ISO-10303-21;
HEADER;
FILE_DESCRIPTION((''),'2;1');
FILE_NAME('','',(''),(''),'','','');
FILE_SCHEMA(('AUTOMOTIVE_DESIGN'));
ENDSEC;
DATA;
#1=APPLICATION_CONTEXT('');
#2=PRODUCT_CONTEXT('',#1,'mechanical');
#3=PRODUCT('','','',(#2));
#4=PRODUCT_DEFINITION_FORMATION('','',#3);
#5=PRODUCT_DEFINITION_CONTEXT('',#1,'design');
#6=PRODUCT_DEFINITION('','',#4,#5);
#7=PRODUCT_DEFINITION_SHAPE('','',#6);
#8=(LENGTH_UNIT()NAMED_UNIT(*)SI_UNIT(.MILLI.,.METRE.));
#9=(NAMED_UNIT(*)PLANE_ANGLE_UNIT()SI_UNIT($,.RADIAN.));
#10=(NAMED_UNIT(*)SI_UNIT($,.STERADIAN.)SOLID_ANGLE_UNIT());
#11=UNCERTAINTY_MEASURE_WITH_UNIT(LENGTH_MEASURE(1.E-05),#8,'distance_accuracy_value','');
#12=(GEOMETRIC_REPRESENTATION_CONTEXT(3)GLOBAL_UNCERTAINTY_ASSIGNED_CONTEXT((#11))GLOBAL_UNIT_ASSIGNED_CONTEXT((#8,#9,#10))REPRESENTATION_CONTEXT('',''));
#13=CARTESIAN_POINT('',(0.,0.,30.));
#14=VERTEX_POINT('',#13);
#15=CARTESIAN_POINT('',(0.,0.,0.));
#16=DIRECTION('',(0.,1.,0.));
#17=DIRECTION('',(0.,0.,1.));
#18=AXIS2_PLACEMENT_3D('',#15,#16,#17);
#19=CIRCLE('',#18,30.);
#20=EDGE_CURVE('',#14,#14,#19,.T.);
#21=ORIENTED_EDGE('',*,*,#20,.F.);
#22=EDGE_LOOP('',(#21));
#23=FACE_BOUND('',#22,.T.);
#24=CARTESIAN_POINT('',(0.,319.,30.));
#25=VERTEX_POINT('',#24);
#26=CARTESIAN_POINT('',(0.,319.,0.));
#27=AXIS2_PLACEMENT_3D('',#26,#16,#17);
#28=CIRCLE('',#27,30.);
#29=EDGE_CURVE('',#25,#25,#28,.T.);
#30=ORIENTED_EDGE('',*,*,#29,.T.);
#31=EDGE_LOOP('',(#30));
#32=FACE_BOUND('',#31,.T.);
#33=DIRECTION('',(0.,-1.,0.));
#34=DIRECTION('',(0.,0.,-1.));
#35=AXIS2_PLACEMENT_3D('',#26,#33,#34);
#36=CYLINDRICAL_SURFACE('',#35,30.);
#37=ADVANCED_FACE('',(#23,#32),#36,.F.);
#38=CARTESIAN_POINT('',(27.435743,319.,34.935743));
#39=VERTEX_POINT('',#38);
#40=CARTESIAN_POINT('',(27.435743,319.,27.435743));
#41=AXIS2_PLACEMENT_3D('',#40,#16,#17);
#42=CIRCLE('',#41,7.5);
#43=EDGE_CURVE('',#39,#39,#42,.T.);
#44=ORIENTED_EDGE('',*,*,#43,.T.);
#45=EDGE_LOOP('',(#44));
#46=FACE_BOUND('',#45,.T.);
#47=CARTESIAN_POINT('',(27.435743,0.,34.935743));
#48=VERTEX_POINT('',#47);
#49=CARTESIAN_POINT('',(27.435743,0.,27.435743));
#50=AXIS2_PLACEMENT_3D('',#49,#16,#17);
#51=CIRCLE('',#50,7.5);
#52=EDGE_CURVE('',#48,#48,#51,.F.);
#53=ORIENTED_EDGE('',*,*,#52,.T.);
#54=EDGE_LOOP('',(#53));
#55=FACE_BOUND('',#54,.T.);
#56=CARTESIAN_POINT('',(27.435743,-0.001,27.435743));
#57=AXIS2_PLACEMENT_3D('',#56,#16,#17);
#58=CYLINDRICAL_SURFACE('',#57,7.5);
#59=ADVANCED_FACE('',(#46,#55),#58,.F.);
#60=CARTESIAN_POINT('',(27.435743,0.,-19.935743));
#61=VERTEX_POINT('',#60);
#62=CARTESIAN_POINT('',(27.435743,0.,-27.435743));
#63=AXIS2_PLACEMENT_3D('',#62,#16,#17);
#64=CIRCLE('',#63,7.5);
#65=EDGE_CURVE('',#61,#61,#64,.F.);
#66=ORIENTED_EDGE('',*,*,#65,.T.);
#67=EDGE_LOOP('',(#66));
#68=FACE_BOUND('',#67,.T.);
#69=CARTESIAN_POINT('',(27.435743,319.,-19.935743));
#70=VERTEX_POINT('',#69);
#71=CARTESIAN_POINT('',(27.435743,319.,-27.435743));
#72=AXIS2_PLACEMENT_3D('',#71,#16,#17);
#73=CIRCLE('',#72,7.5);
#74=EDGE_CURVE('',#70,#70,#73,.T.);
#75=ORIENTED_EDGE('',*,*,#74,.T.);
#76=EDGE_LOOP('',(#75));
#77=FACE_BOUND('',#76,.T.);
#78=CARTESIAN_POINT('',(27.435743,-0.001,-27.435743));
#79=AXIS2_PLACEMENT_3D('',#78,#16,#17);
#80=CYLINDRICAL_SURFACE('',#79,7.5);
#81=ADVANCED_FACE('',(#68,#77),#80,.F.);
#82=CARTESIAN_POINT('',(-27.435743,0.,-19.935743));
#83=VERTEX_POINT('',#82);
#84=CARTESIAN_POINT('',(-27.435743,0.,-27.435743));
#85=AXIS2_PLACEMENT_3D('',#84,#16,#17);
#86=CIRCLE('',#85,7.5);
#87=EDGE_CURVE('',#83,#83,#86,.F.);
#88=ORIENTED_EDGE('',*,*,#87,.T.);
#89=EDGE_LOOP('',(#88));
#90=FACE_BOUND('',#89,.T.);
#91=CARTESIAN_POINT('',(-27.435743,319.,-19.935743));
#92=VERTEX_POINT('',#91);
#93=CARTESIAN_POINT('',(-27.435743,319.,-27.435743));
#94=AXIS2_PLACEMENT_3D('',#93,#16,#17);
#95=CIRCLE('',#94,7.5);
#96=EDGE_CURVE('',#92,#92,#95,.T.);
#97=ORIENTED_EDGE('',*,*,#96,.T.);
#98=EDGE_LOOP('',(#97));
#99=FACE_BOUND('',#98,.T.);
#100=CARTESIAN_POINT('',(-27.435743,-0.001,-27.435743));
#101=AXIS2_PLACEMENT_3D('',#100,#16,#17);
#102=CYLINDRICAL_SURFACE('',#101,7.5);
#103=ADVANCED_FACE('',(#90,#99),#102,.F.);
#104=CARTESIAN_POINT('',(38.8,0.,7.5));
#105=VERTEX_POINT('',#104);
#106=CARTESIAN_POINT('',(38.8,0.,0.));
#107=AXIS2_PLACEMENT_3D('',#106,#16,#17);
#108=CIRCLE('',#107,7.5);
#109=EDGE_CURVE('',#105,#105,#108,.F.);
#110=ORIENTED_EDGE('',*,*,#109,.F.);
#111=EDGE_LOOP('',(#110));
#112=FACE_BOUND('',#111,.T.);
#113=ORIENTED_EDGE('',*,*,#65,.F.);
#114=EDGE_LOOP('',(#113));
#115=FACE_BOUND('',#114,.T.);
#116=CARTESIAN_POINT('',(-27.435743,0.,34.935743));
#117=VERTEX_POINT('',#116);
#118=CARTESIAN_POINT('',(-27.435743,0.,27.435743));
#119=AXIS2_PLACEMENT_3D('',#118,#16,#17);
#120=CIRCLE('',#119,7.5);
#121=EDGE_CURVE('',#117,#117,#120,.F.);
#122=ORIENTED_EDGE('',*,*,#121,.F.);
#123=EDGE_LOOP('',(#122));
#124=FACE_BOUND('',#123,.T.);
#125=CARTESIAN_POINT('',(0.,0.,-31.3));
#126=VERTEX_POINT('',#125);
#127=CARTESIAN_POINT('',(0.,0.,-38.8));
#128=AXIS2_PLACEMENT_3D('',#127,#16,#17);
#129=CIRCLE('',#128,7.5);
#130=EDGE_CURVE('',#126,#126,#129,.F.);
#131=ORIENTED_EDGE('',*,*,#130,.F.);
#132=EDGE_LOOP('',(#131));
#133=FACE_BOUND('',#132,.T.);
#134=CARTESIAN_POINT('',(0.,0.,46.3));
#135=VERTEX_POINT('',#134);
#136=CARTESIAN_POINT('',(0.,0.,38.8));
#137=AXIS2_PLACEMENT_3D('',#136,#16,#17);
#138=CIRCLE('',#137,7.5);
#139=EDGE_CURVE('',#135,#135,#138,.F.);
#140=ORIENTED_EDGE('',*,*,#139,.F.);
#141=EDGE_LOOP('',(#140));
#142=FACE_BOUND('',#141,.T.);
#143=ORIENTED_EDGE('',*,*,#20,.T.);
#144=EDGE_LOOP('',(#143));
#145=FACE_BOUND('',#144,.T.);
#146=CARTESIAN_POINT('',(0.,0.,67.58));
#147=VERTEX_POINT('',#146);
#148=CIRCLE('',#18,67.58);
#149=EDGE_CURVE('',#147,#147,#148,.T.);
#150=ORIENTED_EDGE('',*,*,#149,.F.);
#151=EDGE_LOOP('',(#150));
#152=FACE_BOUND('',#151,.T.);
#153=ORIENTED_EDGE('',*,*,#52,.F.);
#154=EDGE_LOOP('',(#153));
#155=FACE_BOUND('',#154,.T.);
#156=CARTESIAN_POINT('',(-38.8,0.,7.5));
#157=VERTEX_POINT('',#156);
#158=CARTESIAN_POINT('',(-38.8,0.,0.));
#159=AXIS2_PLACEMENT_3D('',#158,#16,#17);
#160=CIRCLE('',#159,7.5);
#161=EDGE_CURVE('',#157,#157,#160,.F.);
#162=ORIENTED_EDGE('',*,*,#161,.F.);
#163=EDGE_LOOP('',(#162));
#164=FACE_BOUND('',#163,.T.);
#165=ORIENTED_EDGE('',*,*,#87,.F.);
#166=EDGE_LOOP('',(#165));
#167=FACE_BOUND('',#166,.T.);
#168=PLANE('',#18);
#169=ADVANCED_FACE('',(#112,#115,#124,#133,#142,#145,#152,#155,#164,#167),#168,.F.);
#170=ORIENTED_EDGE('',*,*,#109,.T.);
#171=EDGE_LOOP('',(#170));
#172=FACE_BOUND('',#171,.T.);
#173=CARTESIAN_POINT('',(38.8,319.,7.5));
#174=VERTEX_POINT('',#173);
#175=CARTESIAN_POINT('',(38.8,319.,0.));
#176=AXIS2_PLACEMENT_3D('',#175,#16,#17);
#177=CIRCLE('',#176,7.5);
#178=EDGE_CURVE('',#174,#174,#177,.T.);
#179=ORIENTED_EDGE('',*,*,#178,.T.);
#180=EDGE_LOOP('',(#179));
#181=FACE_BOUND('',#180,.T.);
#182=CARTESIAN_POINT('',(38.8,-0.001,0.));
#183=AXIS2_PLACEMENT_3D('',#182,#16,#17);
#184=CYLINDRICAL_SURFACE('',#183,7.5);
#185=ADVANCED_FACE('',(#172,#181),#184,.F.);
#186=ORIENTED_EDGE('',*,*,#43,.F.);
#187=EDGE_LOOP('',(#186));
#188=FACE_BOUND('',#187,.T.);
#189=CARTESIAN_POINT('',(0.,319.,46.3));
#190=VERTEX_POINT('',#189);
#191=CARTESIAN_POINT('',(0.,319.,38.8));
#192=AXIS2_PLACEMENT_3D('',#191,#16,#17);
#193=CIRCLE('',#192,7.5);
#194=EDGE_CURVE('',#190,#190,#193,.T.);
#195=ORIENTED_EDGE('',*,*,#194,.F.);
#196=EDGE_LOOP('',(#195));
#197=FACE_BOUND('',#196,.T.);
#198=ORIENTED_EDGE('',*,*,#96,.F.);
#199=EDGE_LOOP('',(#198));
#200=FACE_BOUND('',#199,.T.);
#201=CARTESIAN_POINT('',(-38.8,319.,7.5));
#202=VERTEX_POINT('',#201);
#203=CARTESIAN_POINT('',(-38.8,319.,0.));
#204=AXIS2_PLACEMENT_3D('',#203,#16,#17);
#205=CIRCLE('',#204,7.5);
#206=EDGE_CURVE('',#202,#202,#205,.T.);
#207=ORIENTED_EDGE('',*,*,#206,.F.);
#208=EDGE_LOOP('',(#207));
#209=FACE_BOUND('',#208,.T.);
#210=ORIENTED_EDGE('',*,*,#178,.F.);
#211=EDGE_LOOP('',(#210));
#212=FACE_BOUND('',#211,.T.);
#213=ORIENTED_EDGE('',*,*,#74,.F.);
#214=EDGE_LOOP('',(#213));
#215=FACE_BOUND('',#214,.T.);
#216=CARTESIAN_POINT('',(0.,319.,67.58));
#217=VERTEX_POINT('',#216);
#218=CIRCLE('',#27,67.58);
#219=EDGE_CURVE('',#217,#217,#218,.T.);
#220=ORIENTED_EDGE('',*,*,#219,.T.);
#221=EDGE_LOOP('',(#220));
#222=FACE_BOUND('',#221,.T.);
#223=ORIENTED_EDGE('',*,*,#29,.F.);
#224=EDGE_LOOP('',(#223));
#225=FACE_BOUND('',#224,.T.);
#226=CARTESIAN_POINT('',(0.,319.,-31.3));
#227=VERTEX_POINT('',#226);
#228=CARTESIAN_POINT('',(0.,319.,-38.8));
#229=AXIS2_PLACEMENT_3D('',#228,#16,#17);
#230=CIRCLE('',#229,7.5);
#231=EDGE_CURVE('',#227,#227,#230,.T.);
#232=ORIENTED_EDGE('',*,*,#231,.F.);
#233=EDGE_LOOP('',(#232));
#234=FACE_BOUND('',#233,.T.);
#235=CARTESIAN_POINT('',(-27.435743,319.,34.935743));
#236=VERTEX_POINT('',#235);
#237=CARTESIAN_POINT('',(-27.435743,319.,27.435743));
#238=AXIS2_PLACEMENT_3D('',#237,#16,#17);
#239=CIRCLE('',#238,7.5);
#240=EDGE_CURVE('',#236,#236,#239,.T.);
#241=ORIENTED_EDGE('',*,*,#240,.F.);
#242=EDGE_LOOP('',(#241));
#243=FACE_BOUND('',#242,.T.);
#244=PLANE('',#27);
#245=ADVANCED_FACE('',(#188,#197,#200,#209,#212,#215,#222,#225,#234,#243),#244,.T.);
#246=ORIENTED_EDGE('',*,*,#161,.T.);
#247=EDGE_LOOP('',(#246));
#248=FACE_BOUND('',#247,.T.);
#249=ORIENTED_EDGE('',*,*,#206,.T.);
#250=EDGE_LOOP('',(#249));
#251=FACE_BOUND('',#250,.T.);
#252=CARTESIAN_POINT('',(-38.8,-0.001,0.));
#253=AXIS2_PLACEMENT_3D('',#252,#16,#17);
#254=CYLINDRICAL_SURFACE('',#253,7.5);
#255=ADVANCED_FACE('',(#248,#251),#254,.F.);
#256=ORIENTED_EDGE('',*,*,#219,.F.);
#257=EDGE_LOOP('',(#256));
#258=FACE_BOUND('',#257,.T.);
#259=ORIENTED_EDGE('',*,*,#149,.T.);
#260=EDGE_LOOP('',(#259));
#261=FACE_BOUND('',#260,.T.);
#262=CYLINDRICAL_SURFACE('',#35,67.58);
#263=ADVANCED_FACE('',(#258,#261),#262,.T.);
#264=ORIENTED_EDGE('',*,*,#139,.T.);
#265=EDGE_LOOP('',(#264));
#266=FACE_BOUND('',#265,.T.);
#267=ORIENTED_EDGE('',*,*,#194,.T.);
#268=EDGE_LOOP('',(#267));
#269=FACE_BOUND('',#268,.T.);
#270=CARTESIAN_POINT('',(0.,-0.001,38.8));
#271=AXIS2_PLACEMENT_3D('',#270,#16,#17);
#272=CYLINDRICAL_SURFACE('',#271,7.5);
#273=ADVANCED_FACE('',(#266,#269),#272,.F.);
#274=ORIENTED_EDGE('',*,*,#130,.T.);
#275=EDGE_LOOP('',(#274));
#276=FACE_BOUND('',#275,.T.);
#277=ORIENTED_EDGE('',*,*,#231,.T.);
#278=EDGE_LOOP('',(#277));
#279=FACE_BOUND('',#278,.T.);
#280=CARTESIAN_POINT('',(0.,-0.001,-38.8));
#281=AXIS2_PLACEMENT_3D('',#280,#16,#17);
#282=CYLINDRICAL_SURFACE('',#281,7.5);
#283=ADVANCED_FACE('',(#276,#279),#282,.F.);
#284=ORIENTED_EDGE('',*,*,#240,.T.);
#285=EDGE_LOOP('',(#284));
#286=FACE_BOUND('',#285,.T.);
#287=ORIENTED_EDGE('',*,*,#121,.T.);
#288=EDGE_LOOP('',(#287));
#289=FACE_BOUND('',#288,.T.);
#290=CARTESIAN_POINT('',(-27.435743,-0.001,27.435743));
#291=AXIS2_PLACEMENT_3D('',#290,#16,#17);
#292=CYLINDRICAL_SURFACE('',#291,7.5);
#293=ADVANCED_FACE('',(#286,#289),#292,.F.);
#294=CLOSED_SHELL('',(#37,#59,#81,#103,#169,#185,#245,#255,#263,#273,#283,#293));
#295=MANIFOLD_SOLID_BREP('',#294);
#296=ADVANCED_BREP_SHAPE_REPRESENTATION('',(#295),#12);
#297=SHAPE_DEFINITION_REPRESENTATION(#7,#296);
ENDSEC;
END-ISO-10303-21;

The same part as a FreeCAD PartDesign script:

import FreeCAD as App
import Part
import Sketcher
from FreeCAD import Vector
Q = App.Units.Quantity

doc = App.newDocument("Part")
body = doc.addObject("PartDesign::Body", "Body")

sketch1 = body.newObject("Sketcher::SketchObject", "Sketch")
sketch1.AttachmentSupport = (doc.getObject("XZ_Plane"), [""])
sketch1.MapMode = "FlatFace"
sketch1.addGeometry([
    Part.Circle(Vector(0, 0, 0), Vector(0, 0, 1), 68),
    Part.Circle(Vector(0, 0, 0), Vector(0, 0, 1), 30),
], False)
sketch1.addConstraint([
    Sketcher.Constraint("Coincident", 0, 3, -1, 1),
    Sketcher.Constraint("Coincident", 1, 3, -1, 1),
    Sketcher.Constraint("Diameter", 1, Q("60 mm")),
    Sketcher.Constraint("Diameter", 0, Q("135.16 mm")),
])
pad1 = body.newObject("PartDesign::Pad", "Pad")
pad1.Profile = sketch1
pad1.Length = 319
pad1.Reversed = True

sketch2 = body.newObject("Sketcher::SketchObject", "Sketch001")
sketch2.AttachmentSupport = (doc.getObject("XZ_Plane"), [""])
sketch2.MapMode = "FlatFace"
sketch2.AttachmentOffset = App.Placement(Vector(0, 0, -319), App.Rotation())
sketch2.addGeometry(Part.Circle(Vector(-39, 0, 0), Vector(0, 0, 1), 8), False)
sketch2.addConstraint([
    Sketcher.Constraint("PointOnObject", 0, 3, -1),
    Sketcher.Constraint("Diameter", 0, Q("15 mm")),
    Sketcher.Constraint("DistanceX", 0, 3, -1, 1, Q("38.8 mm")),
])
pocket1 = body.newObject("PartDesign::Pocket", "Pocket")
pocket1.Profile = sketch2
pocket1.Type = "UpToFirst"
pocket1.Reversed = True

sketch3 = body.newObject("Sketcher::SketchObject", "Sketch002")
sketch3.AttachmentSupport = (doc.getObject("XZ_Plane"), [""])
sketch3.MapMode = "FlatFace"
sketch3.AttachmentOffset = App.Placement(Vector(0, 0, -319), App.Rotation())
sketch3.addGeometry(Part.Circle(Vector(-27, -27, 0), Vector(0, 0, 1), 8), False)
sketch3.addConstraint([
    Sketcher.Constraint("Diameter", 0, Q("15 mm")),
    Sketcher.Constraint("DistanceX", 0, 3, -1, 1, Q("27.435743 mm")),
    Sketcher.Constraint("DistanceY", 0, 3, -1, 1, Q("27.435743 mm")),
])
pocket2 = body.newObject("PartDesign::Pocket", "Pocket001")
pocket2.Profile = sketch3
pocket2.Type = "UpToFirst"
pocket2.Reversed = True

sketch4 = body.newObject("Sketcher::SketchObject", "Sketch003")
sketch4.AttachmentSupport = (doc.getObject("XZ_Plane"), [""])
sketch4.MapMode = "FlatFace"
sketch4.AttachmentOffset = App.Placement(Vector(0, 0, -319), App.Rotation())
sketch4.addGeometry(Part.Circle(Vector(0, -39, 0), Vector(0, 0, 1), 8), False)
sketch4.addConstraint([
    Sketcher.Constraint("PointOnObject", 0, 3, -2),
    Sketcher.Constraint("Diameter", 0, Q("15 mm")),
    Sketcher.Constraint("DistanceY", 0, 3, -1, 1, Q("38.8 mm")),
])
pocket3 = body.newObject("PartDesign::Pocket", "Pocket002")
pocket3.Profile = sketch4
pocket3.Type = "UpToFirst"
pocket3.Reversed = True

sketch5 = body.newObject("Sketcher::SketchObject", "Sketch004")
sketch5.AttachmentSupport = (doc.getObject("XZ_Plane"), [""])
sketch5.MapMode = "FlatFace"
sketch5.AttachmentOffset = App.Placement(Vector(0, 0, -319), App.Rotation())
sketch5.addGeometry(Part.Circle(Vector(27, -27, 0), Vector(0, 0, 1), 8), False)
sketch5.addConstraint([
    Sketcher.Constraint("Diameter", 0, Q("15 mm")),
    Sketcher.Constraint("DistanceX", -1, 1, 0, 3, Q("27.435743 mm")),
    Sketcher.Constraint("DistanceY", 0, 3, -1, 1, Q("27.435743 mm")),
])
pocket4 = body.newObject("PartDesign::Pocket", "Pocket003")
pocket4.Profile = sketch5
pocket4.Type = "UpToFirst"
pocket4.Reversed = True

sketch6 = body.newObject("Sketcher::SketchObject", "Sketch005")
sketch6.AttachmentSupport = (doc.getObject("XZ_Plane"), [""])
sketch6.MapMode = "FlatFace"
sketch6.AttachmentOffset = App.Placement(Vector(0, 0, -319), App.Rotation())
sketch6.addGeometry(Part.Circle(Vector(39, 0, 0), Vector(0, 0, 1), 8), False)
sketch6.addConstraint([
    Sketcher.Constraint("PointOnObject", 0, 3, -1),
    Sketcher.Constraint("Diameter", 0, Q("15 mm")),
    Sketcher.Constraint("DistanceX", -1, 1, 0, 3, Q("38.8 mm")),
])
pocket5 = body.newObject("PartDesign::Pocket", "Pocket004")
pocket5.Profile = sketch6
pocket5.Type = "UpToFirst"
pocket5.Reversed = True

sketch7 = body.newObject("Sketcher::SketchObject", "Sketch006")
sketch7.AttachmentSupport = (doc.getObject("XZ_Plane"), [""])
sketch7.MapMode = "FlatFace"
sketch7.AttachmentOffset = App.Placement(Vector(0, 0, -319), App.Rotation())
sketch7.addGeometry(Part.Circle(Vector(27, 27, 0), Vector(0, 0, 1), 8), False)
sketch7.addConstraint([
    Sketcher.Constraint("Diameter", 0, Q("15 mm")),
    Sketcher.Constraint("DistanceX", -1, 1, 0, 3, Q("27.435743 mm")),
    Sketcher.Constraint("DistanceY", -1, 1, 0, 3, Q("27.435743 mm")),
])
pocket6 = body.newObject("PartDesign::Pocket", "Pocket005")
pocket6.Profile = sketch7
pocket6.Type = "UpToFirst"
pocket6.Reversed = True

sketch8 = body.newObject("Sketcher::SketchObject", "Sketch007")
sketch8.AttachmentSupport = (doc.getObject("XZ_Plane"), [""])
sketch8.MapMode = "FlatFace"
sketch8.AttachmentOffset = App.Placement(Vector(0, 0, -319), App.Rotation())
sketch8.addGeometry(Part.Circle(Vector(0, 39, 0), Vector(0, 0, 1), 8), False)
sketch8.addConstraint([
    Sketcher.Constraint("PointOnObject", 0, 3, -2),
    Sketcher.Constraint("Diameter", 0, Q("15 mm")),
    Sketcher.Constraint("DistanceY", -1, 1, 0, 3, Q("38.8 mm")),
])
pocket7 = body.newObject("PartDesign::Pocket", "Pocket006")
pocket7.Profile = sketch8
pocket7.Type = "UpToFirst"
pocket7.Reversed = True

sketch9 = body.newObject("Sketcher::SketchObject", "Sketch008")
sketch9.AttachmentSupport = (doc.getObject("XZ_Plane"), [""])
sketch9.MapMode = "FlatFace"
sketch9.AttachmentOffset = App.Placement(Vector(0, 0, -319), App.Rotation())
sketch9.addGeometry(Part.Circle(Vector(-27, 27, 0), Vector(0, 0, 1), 8), False)
sketch9.addConstraint([
    Sketcher.Constraint("Diameter", 0, Q("15 mm")),
    Sketcher.Constraint("DistanceX", 0, 3, -1, 1, Q("27.435743 mm")),
    Sketcher.Constraint("DistanceY", -1, 1, 0, 3, Q("27.435743 mm")),
])
pocket8 = body.newObject("PartDesign::Pocket", "Pocket007")
pocket8.Profile = sketch9
pocket8.Type = "UpToFirst"
pocket8.Reversed = True

doc.recompute()
